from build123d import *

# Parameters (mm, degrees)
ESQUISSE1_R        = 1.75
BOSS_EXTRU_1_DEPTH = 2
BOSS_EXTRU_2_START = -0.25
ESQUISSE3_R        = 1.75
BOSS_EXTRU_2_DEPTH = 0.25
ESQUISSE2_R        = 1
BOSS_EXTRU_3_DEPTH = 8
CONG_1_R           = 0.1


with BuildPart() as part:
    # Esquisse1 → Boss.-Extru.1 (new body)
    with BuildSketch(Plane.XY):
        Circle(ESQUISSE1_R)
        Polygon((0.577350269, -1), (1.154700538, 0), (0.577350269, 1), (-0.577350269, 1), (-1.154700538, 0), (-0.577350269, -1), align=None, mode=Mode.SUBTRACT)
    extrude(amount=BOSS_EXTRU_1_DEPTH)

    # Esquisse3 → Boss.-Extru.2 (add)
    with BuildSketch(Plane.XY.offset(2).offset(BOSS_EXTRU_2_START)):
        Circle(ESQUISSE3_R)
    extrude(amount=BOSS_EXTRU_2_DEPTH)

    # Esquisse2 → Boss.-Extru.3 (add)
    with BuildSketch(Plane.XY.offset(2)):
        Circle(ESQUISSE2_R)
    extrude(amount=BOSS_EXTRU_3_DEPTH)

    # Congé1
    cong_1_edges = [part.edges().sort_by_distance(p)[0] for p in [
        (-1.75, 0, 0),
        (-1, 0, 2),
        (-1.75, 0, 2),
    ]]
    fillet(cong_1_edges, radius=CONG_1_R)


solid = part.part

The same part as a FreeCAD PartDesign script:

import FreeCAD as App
import Part
import Sketcher

V = App.Vector
Q = App.Units.Quantity


def edges_at(feature, points):
    """Names of the edges that pass closest to the given points."""
    edges = feature.Shape.Edges
    near = lambda p: min(range(len(edges)), key=lambda i: edges[i].distToShape(Part.Vertex(*p))[0])
    return sorted({f"Edge{near(p) + 1}" for p in points})


def add_polygon(sketch, points):
    """Adds a closed chain of lines whose ends are joined by coincident constraints."""
    first, n = sketch.GeometryCount, len(points)
    for a, b in zip(points, points[1:] + points[:1]):
        sketch.addGeometry(Part.LineSegment(App.Vector(*a, 0), App.Vector(*b, 0)), False)
    for i in range(n):
        sketch.addConstraint(Sketcher.Constraint("Coincident", first + i, 2, first + (i + 1) % n, 1))

doc = App.newDocument("Part")
body = doc.addObject("PartDesign::Body", "Body")

# Sketch on XY plane
sketch1 = body.newObject("Sketcher::SketchObject", "Sketch")
sketch1.AttachmentSupport = (doc.getObject("XY_Plane"), [""])
sketch1.MapMode = "FlatFace"
sketch1.addGeometry(Part.Circle(V(0, 0, 0), V(0, 0, 1), 1.75), False)  # 0
add_polygon(sketch1, [(1.154701, 0), (0.57735, -1), (-0.57735, -1), (-1.154701, 0), (-0.57735, 1), (0.57735, 1)])  # lines 1-6
sketch1.addConstraint([
    Sketcher.Constraint("Horizontal", 2),
    Sketcher.Constraint("Horizontal", 5),
    Sketcher.Constraint("Coincident", 0, 3, -1, 1),
    Sketcher.Constraint("Symmetric", 1, 2, 4, 2, -1, 1),
    Sketcher.Constraint("Symmetric", 3, 2, 6, 2, -1, 1),
    Sketcher.Constraint("PointOnObject", 3, 2, -1),
    Sketcher.Constraint("Parallel", 3, 6),
    Sketcher.Constraint("Vertical", 2, 2, 4, 2),
    Sketcher.Constraint("Diameter", 0, 3.5),
    Sketcher.Constraint("Angle", 1, Q("-120 deg")),
    Sketcher.Constraint("DistanceY", 1, 2, -1, 1, 1.0),
    Sketcher.Constraint("DistanceX", 2, 2, 2, 1, 1.154701),
])
pad1 = body.newObject("PartDesign::Pad", "Pad")
pad1.Profile = sketch1
pad1.Length = 2

# Sketch on XY plane
sketch2 = body.newObject("Sketcher::SketchObject", "Sketch001")
sketch2.AttachmentSupport = (doc.getObject("XY_Plane"), [""])
sketch2.MapMode = "FlatFace"
sketch2.AttachmentOffset = App.Placement(V(0, 0, 1.75), App.Rotation())
sketch2.addGeometry(Part.Circle(V(0, 0, 0), V(0, 0, 1), 1.75), False)
sketch2.addConstraint([
    Sketcher.Constraint("Coincident", 0, 3, -1, 1),
    Sketcher.Constraint("Diameter", 0, 3.5),
])
pad2 = body.newObject("PartDesign::Pad", "Pad001")
pad2.Profile = sketch2
pad2.Length = 0.25

# Sketch on XY plane
sketch3 = body.newObject("Sketcher::SketchObject", "Sketch002")
sketch3.AttachmentSupport = (doc.getObject("XY_Plane"), [""])
sketch3.MapMode = "FlatFace"
sketch3.AttachmentOffset = App.Placement(V(0, 0, 2), App.Rotation())
sketch3.addGeometry(Part.Circle(V(0, 0, 0), V(0, 0, 1), 1), False)
sketch3.addConstraint([
    Sketcher.Constraint("Coincident", 0, 3, -1, 1),
    Sketcher.Constraint("Diameter", 0, 2.0),
])
pad3 = body.newObject("PartDesign::Pad", "Pad002")
pad3.Profile = sketch3
pad3.Length = 8
doc.recompute()

fillet = body.newObject("PartDesign::Fillet", "Fillet")
fillet.Base = (pad3, edges_at(pad3, [(-1.75, 0, 0), (-1, 0, 2), (-1.75, 0, 2)]))
fillet.Radius = 0.1

doc.recompute()
